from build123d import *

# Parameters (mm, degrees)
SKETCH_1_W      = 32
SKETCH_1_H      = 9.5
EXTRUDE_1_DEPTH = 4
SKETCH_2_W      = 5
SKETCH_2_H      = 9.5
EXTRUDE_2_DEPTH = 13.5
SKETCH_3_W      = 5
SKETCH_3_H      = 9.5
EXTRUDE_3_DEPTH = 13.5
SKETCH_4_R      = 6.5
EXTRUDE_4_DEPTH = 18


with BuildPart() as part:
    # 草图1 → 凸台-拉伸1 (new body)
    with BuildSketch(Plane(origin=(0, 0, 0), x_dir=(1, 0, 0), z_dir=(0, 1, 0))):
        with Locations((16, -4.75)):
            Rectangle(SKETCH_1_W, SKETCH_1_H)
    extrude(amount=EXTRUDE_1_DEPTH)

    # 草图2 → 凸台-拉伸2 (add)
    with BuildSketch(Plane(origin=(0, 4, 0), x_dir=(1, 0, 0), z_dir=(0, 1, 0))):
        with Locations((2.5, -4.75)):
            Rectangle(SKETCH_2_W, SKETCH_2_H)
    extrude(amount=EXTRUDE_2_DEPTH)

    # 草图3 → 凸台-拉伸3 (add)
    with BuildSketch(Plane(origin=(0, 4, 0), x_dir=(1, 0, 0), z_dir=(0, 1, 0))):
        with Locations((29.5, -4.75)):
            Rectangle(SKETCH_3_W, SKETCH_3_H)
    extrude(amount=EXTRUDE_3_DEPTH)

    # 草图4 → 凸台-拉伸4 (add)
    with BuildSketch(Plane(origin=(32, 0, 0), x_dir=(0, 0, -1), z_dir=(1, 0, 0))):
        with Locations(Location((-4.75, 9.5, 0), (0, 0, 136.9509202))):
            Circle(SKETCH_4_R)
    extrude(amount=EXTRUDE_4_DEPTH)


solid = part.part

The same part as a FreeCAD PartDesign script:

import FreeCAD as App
import Part
import Sketcher


def add_polygon(sketch, points):
    """Adds a closed chain of lines whose ends are joined by coincident constraints."""
    first, n = sketch.GeometryCount, len(points)
    for a, b in zip(points, points[1:] + points[:1]):
        sketch.addGeometry(Part.LineSegment(App.Vector(*a, 0), App.Vector(*b, 0)), False)
    for i in range(n):
        sketch.addConstraint(Sketcher.Constraint("Coincident", first + i, 2, first + (i + 1) % n, 1))

doc = App.newDocument("Part")
params = doc.addObject("Spreadsheet::Sheet", "Params")
for row, (alias, value) in enumerate([
    ("sketch1_width", "32 mm"),
    ("sketch1_height", "9.5 mm"),
    ("pad1_length", "4 mm"),
    ("sketch2_width", "5 mm"),
    ("sketch2_height", "9.5 mm"),
    ("pad2_length", "13.5 mm"),
    ("sketch3_width", "5 mm"),
    ("sketch3_height", "9.5 mm"),
    ("pad3_length", "13.5 mm"),
    ("sketch4_diameter", "13 mm"),
    ("pad4_length", "18 mm"),
], start=1):
    params.set(f"A{row}", alias)
    params.set(f"B{row}", "=" + value)
    params.setAlias(f"B{row}", alias)

body = doc.addObject("PartDesign::Body", "Body")

# Sketch on XZ plane
sketch1 = doc.addObject("Sketcher::SketchObject", "Sketch")
body.addObject(sketch1)
sketch1.AttachmentSupport = (doc.XZ_Plane, [""])
sketch1.MapMode = "FlatFace"
add_polygon(sketch1, [(0, 0), (0, 10), (32, 10), (32, 0)])  # lines 0-3
sketch1.addConstraint([
    Sketcher.Constraint("Vertical", 0),
    Sketcher.Constraint("Horizontal", 1),
    Sketcher.Constraint("Vertical", 2),
    Sketcher.Constraint("Horizontal", 3),
    Sketcher.Constraint("Coincident", 3, 2, -1, 1),
    Sketcher.Constraint("DistanceX", 1, 1, 1, 2, 32.0),
    Sketcher.Constraint("DistanceY", 0, 1, 0, 2, 9.5),
])
sketch1.setExpression("Constraints[9]", "Params.sketch1_width")
sketch1.setExpression("Constraints[10]", "Params.sketch1_height")
pad1 = doc.addObject("PartDesign::Pad", "Pad")
body.addObject(pad1)
pad1.Profile = sketch1
pad1.setExpression("Length", "Params.pad1_length")
pad1.Reversed = True

# Sketch on XZ plane
sketch2 = doc.addObject("Sketcher::SketchObject", "Sketch001")
body.addObject(sketch2)
sketch2.AttachmentSupport = (doc.XZ_Plane, [""])
sketch2.MapMode = "FlatFace"
sketch2.AttachmentOffset = App.Placement(App.Vector(0, 0, -4), App.Rotation())
add_polygon(sketch2, [(0, 0), (0, 10), (5, 10), (5, 0)])  # lines 0-3
sketch2.addConstraint([
    Sketcher.Constraint("Vertical", 0),
    Sketcher.Constraint("Horizontal", 1),
    Sketcher.Constraint("Vertical", 2),
    Sketcher.Constraint("Horizontal", 3),
    Sketcher.Constraint("Coincident", 3, 2, -1, 1),
    Sketcher.Constraint("DistanceX", 1, 1, 1, 2, 5.0),
    Sketcher.Constraint("DistanceY", 0, 1, 0, 2, 9.5),
])
sketch2.setExpression("Constraints[9]", "Params.sketch2_width")
sketch2.setExpression("Constraints[10]", "Params.sketch2_height")
pad2 = doc.addObject("PartDesign::Pad", "Pad001")
body.addObject(pad2)
pad2.Profile = sketch2
pad2.setExpression("Length", "Params.pad2_length")
pad2.Reversed = True

# Sketch on XZ plane
sketch3 = doc.addObject("Sketcher::SketchObject", "Sketch002")
body.addObject(sketch3)
sketch3.AttachmentSupport = (doc.XZ_Plane, [""])
sketch3.MapMode = "FlatFace"
sketch3.AttachmentOffset = App.Placement(App.Vector(0, 0, -4), App.Rotation())
add_polygon(sketch3, [(27, 0), (27, 10), (32, 10), (32, 0)])  # lines 0-3
sketch3.addConstraint([
    Sketcher.Constraint("Vertical", 0),
    Sketcher.Constraint("Horizontal", 1),
    Sketcher.Constraint("Vertical", 2),
    Sketcher.Constraint("Horizontal", 3),
    Sketcher.Constraint("PointOnObject", 2, 2, -1),
    Sketcher.Constraint("DistanceX", 1, 1, 1, 2, 5.0),
    Sketcher.Constraint("DistanceY", 0, 1, 0, 2, 9.5),
    Sketcher.Constraint("DistanceX", -1, 1, 0, 2, 27.0),
])
sketch3.setExpression("Constraints[9]", "Params.sketch3_width")
sketch3.setExpression("Constraints[10]", "Params.sketch3_height")
pad3 = doc.addObject("PartDesign::Pad", "Pad002")
body.addObject(pad3)
pad3.Profile = sketch3
pad3.setExpression("Length", "Params.pad3_length")
pad3.Reversed = True

# Sketch on YZ plane
sketch4 = doc.addObject("Sketcher::SketchObject", "Sketch003")
body.addObject(sketch4)
sketch4.AttachmentSupport = (doc.YZ_Plane, [""])
sketch4.MapMode = "FlatFace"
sketch4.AttachmentOffset = App.Placement(App.Vector(0, 0, 32), App.Rotation())
sketch4.addGeometry(Part.Circle(App.Vector(10, 5, 0), App.Vector(0, 0, 1), 6), False)
sketch4.addConstraint([
    Sketcher.Constraint("Diameter", 0, 13.0),
    Sketcher.Constraint("DistanceX", -1, 1, 0, 3, 9.5),
    Sketcher.Constraint("DistanceY", -1, 1, 0, 3, 4.75),
])
sketch4.setExpression("Constraints[0]", "Params.sketch4_diameter")
pad4 = doc.addObject("PartDesign::Pad", "Pad003")
body.addObject(pad4)
pad4.Profile = sketch4
pad4.setExpression("Length", "Params.pad4_length")

doc.recompute()
